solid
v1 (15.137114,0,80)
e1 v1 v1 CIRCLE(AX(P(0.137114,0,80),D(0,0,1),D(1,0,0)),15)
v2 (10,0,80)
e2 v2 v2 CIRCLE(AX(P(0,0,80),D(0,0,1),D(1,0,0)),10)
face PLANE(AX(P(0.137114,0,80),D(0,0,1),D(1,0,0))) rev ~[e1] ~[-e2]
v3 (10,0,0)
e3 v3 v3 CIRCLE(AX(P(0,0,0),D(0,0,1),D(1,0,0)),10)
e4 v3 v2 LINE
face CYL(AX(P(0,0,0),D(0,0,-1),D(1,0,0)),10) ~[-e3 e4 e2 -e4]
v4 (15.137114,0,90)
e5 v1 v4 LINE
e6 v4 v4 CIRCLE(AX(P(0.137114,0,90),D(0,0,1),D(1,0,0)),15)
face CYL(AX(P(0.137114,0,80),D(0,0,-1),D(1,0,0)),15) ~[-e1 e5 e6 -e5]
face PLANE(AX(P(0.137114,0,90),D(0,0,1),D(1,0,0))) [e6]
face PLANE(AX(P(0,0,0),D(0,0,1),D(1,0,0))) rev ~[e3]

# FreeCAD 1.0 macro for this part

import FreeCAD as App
import Part
import Sketcher

V = App.Vector

doc = App.newDocument("Part")
body = doc.addObject("PartDesign::Body", "Body")

sketch1 = body.newObject("Sketcher::SketchObject", "Sketch")
sketch1.AttachmentSupport = (doc.getObject("XY_Plane"), [""])
sketch1.MapMode = "FlatFace"
sketch1.addGeometry(Part.Circle(V(0, 0, 0), V(0, 0, 1), 10), False)
sketch1.addConstraint([
    Sketcher.Constraint("Coincident", 0, 3, -1, 1),
    Sketcher.Constraint("Diameter", 0, 20.0),
])
pad1 = body.newObject("PartDesign::Pad", "Pad")
pad1.Profile = sketch1
pad1.Length = 80

sketch2 = body.newObject("Sketcher::SketchObject", "Sketch001")
sketch2.AttachmentSupport = (doc.getObject("XY_Plane"), [""])
sketch2.MapMode = "FlatFace"
sketch2.AttachmentOffset = App.Placement(V(0, 0, 80), App.Rotation())
sketch2.addGeometry(Part.Circle(V(0, 0, 0), V(0, 0, 1), 15), False)
sketch2.addConstraint([
    Sketcher.Constraint("PointOnObject", 0, 3, -1),
    Sketcher.Constraint("Diameter", 0, 30.0),
    Sketcher.Constraint("DistanceX", -1, 1, 0, 3, 0.137114),
])
pad2 = body.newObject("PartDesign::Pad", "Pad001")
pad2.Profile = sketch2
pad2.Length = 10

doc.recompute()
